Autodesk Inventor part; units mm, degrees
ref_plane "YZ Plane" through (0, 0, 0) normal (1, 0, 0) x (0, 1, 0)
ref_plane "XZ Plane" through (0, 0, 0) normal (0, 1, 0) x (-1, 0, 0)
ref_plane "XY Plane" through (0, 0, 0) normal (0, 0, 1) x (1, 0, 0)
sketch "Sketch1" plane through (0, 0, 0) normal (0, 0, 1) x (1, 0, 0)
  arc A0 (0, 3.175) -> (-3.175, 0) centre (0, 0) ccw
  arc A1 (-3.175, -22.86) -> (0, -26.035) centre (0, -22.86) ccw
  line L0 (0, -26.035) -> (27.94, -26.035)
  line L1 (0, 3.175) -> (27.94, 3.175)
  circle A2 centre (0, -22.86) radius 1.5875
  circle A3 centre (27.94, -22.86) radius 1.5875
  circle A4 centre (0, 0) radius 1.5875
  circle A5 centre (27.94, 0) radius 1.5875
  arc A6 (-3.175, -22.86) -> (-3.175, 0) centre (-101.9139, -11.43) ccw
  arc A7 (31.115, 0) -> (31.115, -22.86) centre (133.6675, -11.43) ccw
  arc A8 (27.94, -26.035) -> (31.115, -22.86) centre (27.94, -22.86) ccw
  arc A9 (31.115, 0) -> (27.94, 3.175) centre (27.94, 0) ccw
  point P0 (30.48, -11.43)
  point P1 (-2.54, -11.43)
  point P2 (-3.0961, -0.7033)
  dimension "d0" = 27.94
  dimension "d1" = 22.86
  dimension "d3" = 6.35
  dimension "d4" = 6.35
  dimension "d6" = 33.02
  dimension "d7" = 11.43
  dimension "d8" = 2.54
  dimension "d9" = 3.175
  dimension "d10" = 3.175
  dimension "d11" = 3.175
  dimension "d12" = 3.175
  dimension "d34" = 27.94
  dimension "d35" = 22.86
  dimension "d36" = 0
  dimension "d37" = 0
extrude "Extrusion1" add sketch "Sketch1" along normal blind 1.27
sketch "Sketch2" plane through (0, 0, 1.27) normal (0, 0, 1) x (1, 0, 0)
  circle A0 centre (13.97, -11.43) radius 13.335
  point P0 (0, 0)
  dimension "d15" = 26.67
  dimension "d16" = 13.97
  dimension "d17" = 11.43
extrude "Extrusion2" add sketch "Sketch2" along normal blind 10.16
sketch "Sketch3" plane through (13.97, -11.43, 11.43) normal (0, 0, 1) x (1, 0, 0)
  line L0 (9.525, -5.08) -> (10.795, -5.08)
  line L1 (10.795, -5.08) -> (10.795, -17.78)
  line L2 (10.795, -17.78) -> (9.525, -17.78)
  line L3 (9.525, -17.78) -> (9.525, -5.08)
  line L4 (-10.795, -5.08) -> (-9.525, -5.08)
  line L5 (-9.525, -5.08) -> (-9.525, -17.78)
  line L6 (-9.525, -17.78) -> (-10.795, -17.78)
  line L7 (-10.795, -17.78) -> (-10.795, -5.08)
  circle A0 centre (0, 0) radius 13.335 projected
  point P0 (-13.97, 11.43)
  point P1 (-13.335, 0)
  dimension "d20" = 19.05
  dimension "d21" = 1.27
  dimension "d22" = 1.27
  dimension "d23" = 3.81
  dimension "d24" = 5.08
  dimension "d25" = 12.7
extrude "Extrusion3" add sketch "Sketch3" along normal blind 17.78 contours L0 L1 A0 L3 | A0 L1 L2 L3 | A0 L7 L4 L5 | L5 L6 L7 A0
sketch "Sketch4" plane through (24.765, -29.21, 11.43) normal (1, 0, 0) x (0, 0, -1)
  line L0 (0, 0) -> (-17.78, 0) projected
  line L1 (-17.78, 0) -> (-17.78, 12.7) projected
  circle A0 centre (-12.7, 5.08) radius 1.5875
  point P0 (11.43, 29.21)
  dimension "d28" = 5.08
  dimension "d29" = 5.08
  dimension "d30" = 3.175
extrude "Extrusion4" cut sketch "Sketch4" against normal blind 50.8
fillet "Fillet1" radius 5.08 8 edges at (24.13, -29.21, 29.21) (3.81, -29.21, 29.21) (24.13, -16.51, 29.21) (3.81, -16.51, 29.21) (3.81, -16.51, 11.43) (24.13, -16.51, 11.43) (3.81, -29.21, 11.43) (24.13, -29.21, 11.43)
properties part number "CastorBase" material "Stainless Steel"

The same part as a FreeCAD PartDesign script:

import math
import FreeCAD as App
import Part
import Sketcher
Q = App.Units.Quantity


def edges_at(feature, points):
    """Names of the edges that pass closest to the given points."""
    edges = feature.Shape.Edges
    near = lambda p: min(range(len(edges)), key=lambda i: edges[i].distToShape(Part.Vertex(*p))[0])
    return sorted({f"Edge{near(p) + 1}" for p in points})


def add_polygon(sketch, points):
    """Adds a closed chain of lines whose ends are joined by coincident constraints."""
    first, n = sketch.GeometryCount, len(points)
    for a, b in zip(points, points[1:] + points[:1]):
        sketch.addGeometry(Part.LineSegment(App.Vector(*a, 0), App.Vector(*b, 0)), False)
    for i in range(n):
        sketch.addConstraint(Sketcher.Constraint("Coincident", first + i, 2, first + (i + 1) % n, 1))

doc = App.newDocument("Part")
body = doc.addObject("PartDesign::Body", "Body")

# Sketch on XY plane
sketch1 = body.newObject("Sketcher::SketchObject", "Sketch")
sketch1.AttachmentSupport = (doc.getObject("XY_Plane"), [""])
sketch1.MapMode = "FlatFace"
sketch1.addGeometry(Part.LineSegment(App.Vector(27.9, 3.2, 0), App.Vector(0, 3.2, 0)), False)
sketch1.addGeometry(Part.ArcOfCircle(Part.Circle(App.Vector(0, 0, 0), App.Vector(0, 0, 1), 3.2), math.radians(90), math.radians(180)), False)
sketch1.addGeometry(Part.ArcOfCircle(Part.Circle(App.Vector(-101.9, -11.4, 0), App.Vector(0, 0, 1), 99.4), math.radians(-6.6), math.radians(6.6)), False)
sketch1.addGeometry(Part.ArcOfCircle(Part.Circle(App.Vector(0, -22.9, 0), App.Vector(0, 0, 1), 3.2), math.radians(180), math.radians(270)), False)
sketch1.addGeometry(Part.LineSegment(App.Vector(0, -26, 0), App.Vector(27.9, -26, 0)), False)
sketch1.addGeometry(Part.ArcOfCircle(Part.Circle(App.Vector(27.9, -22.9, 0), App.Vector(0, 0, 1), 3.2), math.radians(-90), math.radians(0)), False)
sketch1.addGeometry(Part.ArcOfCircle(Part.Circle(App.Vector(133.7, -11.4, 0), App.Vector(0, 0, 1), 103.2), math.radians(173.64), math.radians(186.36)), False)
sketch1.addGeometry(Part.ArcOfCircle(Part.Circle(App.Vector(27.9, 0, 0), App.Vector(0, 0, 1), 3.2), math.radians(0), math.radians(90)), False)
sketch1.addGeometry(Part.Circle(App.Vector(0, -22.9, 0), App.Vector(0, 0, 1), 1.6), False)
sketch1.addGeometry(Part.Circle(App.Vector(27.9, -22.9, 0), App.Vector(0, 0, 1), 1.6), False)
sketch1.addGeometry(Part.Circle(App.Vector(0, 0, 0), App.Vector(0, 0, 1), 1.6), False)
sketch1.addGeometry(Part.Circle(App.Vector(27.9, 0, 0), App.Vector(0, 0, 1), 1.6), False)
sketch1.addConstraint(Sketcher.Constraint("Tangent", 0, 2, 1, 1))
sketch1.addConstraint(Sketcher.Constraint("Coincident", 1, 2, 2, 2))
sketch1.addConstraint(Sketcher.Constraint("Coincident", 2, 1, 3, 1))
sketch1.addConstraint(Sketcher.Constraint("Tangent", 3, 2, 4, 1))
sketch1.addConstraint(Sketcher.Constraint("Tangent", 4, 2, 5, 1))
sketch1.addConstraint(Sketcher.Constraint("Coincident", 5, 2, 6, 2))
sketch1.addConstraint(Sketcher.Constraint("Coincident", 6, 1, 7, 1))
sketch1.addConstraint(Sketcher.Constraint("Tangent", 7, 2, 0, 1))
sketch1.addConstraint(Sketcher.Constraint("Horizontal", 0))
sketch1.addConstraint(Sketcher.Constraint("Horizontal", 4))
sketch1.addConstraint(Sketcher.Constraint("Coincident", 1, 3, -1, 1))
sketch1.addConstraint(Sketcher.Constraint("Coincident", 10, 3, -1, 1))
sketch1.addConstraint(Sketcher.Constraint("Coincident", 8, 3, 3, 3))
sketch1.addConstraint(Sketcher.Constraint("Coincident", 9, 3, 5, 3))
sketch1.addConstraint(Sketcher.Constraint("Coincident", 11, 3, 7, 3))
sketch1.addConstraint(Sketcher.Constraint("Equal", 1, 3))
sketch1.addConstraint(Sketcher.Constraint("Equal", 3, 5))
sketch1.addConstraint(Sketcher.Constraint("Equal", 5, 7))
sketch1.addConstraint(Sketcher.Constraint("Equal", 8, 9))
sketch1.addConstraint(Sketcher.Constraint("Equal", 9, 10))
sketch1.addConstraint(Sketcher.Constraint("Equal", 10, 11))
sketch1.addConstraint(Sketcher.Constraint("PointOnObject", 3, 3, -2))
sketch1.addConstraint(Sketcher.Constraint("PointOnObject", 1, 2, -1))
sketch1.addConstraint(Sketcher.Constraint("PointOnObject", 6, 1, -1))
sketch1.addConstraint(Sketcher.Constraint("Horizontal", 2, 3, 6, 3))
sketch1.addConstraint(Sketcher.Constraint("Horizontal", 9, 3, 2, 1))
sketch1.addConstraint(Sketcher.Constraint("Horizontal", 2, 1, 5, 2))
sketch1.addConstraint(Sketcher.Constraint("Diameter", 8, Q("0.125 in")))
sketch1.addConstraint(Sketcher.Constraint("DistanceX", 0, 2, 0, 1, Q("1.1 in")))
sketch1.addConstraint(Sketcher.Constraint("Radius", 1, Q("0.125 in")))
sketch1.addConstraint(Sketcher.Constraint("DistanceY", 3, 3, -1, 1, Q("0.9 in")))
sketch1.addConstraint(Sketcher.Constraint("Radius", 6, Q("4.0625 in")))
sketch1.addConstraint(Sketcher.Constraint("Radius", 2, Q("99.3983 mm")))
pad1 = body.newObject("PartDesign::Pad", "Pad")
pad1.Profile = sketch1
pad1.Length = Q("0.05 in")

# Sketch on XY plane
sketch2 = body.newObject("Sketcher::SketchObject", "Sketch001")
sketch2.AttachmentSupport = (doc.getObject("XY_Plane"), [""])
sketch2.MapMode = "FlatFace"
sketch2.AttachmentOffset = App.Placement(App.Vector(0, 0, 0.05 * 25.4), App.Rotation())
sketch2.addGeometry(Part.Circle(App.Vector(14, -11, 0), App.Vector(0, 0, 1), 13), False)
sketch2.addConstraint(Sketcher.Constraint("Diameter", 0, Q("1.05 in")))
sketch2.addConstraint(Sketcher.Constraint("DistanceX", -1, 1, 0, 3, Q("0.55 in")))
sketch2.addConstraint(Sketcher.Constraint("DistanceY", 0, 3, -1, 1, Q("0.45 in")))
pad2 = body.newObject("PartDesign::Pad", "Pad001")
pad2.Profile = sketch2
pad2.Length = Q("0.4 in")

# Sketch on XY plane
sketch3 = body.newObject("Sketcher::SketchObject", "Sketch002")
sketch3.AttachmentSupport = (doc.getObject("XY_Plane"), [""])
sketch3.MapMode = "FlatFace"
sketch3.AttachmentOffset = App.Placement(App.Vector(0, 0, 0.45 * 25.4), App.Rotation())
add_polygon(sketch3, [(24.8, -16.5), (23.5, -16.5), (23.5, -29.2), (24.8, -29.2)])  # lines 0-3
add_polygon(sketch3, [(3.2, -16.5), (3.2, -29.2), (4.4, -29.2), (4.4, -16.5)])  # lines 4-7
sketch3.addConstraint(Sketcher.Constraint("Horizontal", 0))
sketch3.addConstraint(Sketcher.Constraint("Vertical", 1))
sketch3.addConstraint(Sketcher.Constraint("Horizontal", 2))
sketch3.addConstraint(Sketcher.Constraint("Vertical", 3))
sketch3.addConstraint(Sketcher.Constraint("Vertical", 4))
sketch3.addConstraint(Sketcher.Constraint("Horizontal", 5))
sketch3.addConstraint(Sketcher.Constraint("Vertical", 6))
sketch3.addConstraint(Sketcher.Constraint("Horizontal", 7))
sketch3.addConstraint(Sketcher.Constraint("Horizontal", 2, 2, 4, 2))
sketch3.addConstraint(Sketcher.Constraint("Horizontal", 3, 2, 6, 2))
sketch3.addConstraint(Sketcher.Constraint("Equal", 2, 5))
sketch3.addConstraint(Sketcher.Constraint("DistanceY", 1, 2, 1, 1, Q("0.5 in")))
sketch3.addConstraint(Sketcher.Constraint("DistanceX", 0, 2, 0, 1, Q("0.05 in")))
sketch3.addConstraint(Sketcher.Constraint("DistanceX", 5, 2, 1, 2, Q("0.75 in")))
sketch3.addConstraint(Sketcher.Constraint("DistanceY", 0, 2, -1, 1, Q("0.65 in")))
sketch3.addConstraint(Sketcher.Constraint("DistanceX", -1, 1, 0, 2, Q("0.925 in")))
pad3 = body.newObject("PartDesign::Pad", "Pad002")
pad3.Profile = sketch3
pad3.Length = Q("0.7 in")

# Sketch on YZ plane
sketch4 = body.newObject("Sketcher::SketchObject", "Sketch003")
sketch4.AttachmentSupport = (doc.getObject("YZ_Plane"), [""])
sketch4.MapMode = "FlatFace"
sketch4.AttachmentOffset = App.Placement(App.Vector(0, 0, 0.975 * 25.4), App.Rotation())
sketch4.addGeometry(Part.Circle(App.Vector(-24.1, 24.1, 0), App.Vector(0, 0, 1), 1.6), False)
sketch4.addConstraint(Sketcher.Constraint("Diameter", 0, Q("0.125 in")))
sketch4.addConstraint(Sketcher.Constraint("DistanceX", 0, 3, -1, 1, Q("0.95 in")))
sketch4.addConstraint(Sketcher.Constraint("DistanceY", -1, 1, 0, 3, Q("0.95 in")))
pocket1 = body.newObject("PartDesign::Pocket", "Pocket")
pocket1.Profile = sketch4
pocket1.Length = Q("2 in")
doc.recompute()

fillet = body.newObject("PartDesign::Fillet", "Fillet")
fillet.Base = (pocket1, edges_at(pocket1, [
    (24.13, -29.21, 29.21),
    (3.81, -29.21, 29.21),
    (24.13, -16.51, 29.21),
    (3.81, -16.51, 29.21),
    (3.81, -16.51, 11.43),
    (24.13, -16.51, 11.43),
    (3.81, -29.21, 11.43),
    (24.13, -29.21, 11.43),
]))
fillet.Radius = Q("0.2 in")

doc.recompute()
